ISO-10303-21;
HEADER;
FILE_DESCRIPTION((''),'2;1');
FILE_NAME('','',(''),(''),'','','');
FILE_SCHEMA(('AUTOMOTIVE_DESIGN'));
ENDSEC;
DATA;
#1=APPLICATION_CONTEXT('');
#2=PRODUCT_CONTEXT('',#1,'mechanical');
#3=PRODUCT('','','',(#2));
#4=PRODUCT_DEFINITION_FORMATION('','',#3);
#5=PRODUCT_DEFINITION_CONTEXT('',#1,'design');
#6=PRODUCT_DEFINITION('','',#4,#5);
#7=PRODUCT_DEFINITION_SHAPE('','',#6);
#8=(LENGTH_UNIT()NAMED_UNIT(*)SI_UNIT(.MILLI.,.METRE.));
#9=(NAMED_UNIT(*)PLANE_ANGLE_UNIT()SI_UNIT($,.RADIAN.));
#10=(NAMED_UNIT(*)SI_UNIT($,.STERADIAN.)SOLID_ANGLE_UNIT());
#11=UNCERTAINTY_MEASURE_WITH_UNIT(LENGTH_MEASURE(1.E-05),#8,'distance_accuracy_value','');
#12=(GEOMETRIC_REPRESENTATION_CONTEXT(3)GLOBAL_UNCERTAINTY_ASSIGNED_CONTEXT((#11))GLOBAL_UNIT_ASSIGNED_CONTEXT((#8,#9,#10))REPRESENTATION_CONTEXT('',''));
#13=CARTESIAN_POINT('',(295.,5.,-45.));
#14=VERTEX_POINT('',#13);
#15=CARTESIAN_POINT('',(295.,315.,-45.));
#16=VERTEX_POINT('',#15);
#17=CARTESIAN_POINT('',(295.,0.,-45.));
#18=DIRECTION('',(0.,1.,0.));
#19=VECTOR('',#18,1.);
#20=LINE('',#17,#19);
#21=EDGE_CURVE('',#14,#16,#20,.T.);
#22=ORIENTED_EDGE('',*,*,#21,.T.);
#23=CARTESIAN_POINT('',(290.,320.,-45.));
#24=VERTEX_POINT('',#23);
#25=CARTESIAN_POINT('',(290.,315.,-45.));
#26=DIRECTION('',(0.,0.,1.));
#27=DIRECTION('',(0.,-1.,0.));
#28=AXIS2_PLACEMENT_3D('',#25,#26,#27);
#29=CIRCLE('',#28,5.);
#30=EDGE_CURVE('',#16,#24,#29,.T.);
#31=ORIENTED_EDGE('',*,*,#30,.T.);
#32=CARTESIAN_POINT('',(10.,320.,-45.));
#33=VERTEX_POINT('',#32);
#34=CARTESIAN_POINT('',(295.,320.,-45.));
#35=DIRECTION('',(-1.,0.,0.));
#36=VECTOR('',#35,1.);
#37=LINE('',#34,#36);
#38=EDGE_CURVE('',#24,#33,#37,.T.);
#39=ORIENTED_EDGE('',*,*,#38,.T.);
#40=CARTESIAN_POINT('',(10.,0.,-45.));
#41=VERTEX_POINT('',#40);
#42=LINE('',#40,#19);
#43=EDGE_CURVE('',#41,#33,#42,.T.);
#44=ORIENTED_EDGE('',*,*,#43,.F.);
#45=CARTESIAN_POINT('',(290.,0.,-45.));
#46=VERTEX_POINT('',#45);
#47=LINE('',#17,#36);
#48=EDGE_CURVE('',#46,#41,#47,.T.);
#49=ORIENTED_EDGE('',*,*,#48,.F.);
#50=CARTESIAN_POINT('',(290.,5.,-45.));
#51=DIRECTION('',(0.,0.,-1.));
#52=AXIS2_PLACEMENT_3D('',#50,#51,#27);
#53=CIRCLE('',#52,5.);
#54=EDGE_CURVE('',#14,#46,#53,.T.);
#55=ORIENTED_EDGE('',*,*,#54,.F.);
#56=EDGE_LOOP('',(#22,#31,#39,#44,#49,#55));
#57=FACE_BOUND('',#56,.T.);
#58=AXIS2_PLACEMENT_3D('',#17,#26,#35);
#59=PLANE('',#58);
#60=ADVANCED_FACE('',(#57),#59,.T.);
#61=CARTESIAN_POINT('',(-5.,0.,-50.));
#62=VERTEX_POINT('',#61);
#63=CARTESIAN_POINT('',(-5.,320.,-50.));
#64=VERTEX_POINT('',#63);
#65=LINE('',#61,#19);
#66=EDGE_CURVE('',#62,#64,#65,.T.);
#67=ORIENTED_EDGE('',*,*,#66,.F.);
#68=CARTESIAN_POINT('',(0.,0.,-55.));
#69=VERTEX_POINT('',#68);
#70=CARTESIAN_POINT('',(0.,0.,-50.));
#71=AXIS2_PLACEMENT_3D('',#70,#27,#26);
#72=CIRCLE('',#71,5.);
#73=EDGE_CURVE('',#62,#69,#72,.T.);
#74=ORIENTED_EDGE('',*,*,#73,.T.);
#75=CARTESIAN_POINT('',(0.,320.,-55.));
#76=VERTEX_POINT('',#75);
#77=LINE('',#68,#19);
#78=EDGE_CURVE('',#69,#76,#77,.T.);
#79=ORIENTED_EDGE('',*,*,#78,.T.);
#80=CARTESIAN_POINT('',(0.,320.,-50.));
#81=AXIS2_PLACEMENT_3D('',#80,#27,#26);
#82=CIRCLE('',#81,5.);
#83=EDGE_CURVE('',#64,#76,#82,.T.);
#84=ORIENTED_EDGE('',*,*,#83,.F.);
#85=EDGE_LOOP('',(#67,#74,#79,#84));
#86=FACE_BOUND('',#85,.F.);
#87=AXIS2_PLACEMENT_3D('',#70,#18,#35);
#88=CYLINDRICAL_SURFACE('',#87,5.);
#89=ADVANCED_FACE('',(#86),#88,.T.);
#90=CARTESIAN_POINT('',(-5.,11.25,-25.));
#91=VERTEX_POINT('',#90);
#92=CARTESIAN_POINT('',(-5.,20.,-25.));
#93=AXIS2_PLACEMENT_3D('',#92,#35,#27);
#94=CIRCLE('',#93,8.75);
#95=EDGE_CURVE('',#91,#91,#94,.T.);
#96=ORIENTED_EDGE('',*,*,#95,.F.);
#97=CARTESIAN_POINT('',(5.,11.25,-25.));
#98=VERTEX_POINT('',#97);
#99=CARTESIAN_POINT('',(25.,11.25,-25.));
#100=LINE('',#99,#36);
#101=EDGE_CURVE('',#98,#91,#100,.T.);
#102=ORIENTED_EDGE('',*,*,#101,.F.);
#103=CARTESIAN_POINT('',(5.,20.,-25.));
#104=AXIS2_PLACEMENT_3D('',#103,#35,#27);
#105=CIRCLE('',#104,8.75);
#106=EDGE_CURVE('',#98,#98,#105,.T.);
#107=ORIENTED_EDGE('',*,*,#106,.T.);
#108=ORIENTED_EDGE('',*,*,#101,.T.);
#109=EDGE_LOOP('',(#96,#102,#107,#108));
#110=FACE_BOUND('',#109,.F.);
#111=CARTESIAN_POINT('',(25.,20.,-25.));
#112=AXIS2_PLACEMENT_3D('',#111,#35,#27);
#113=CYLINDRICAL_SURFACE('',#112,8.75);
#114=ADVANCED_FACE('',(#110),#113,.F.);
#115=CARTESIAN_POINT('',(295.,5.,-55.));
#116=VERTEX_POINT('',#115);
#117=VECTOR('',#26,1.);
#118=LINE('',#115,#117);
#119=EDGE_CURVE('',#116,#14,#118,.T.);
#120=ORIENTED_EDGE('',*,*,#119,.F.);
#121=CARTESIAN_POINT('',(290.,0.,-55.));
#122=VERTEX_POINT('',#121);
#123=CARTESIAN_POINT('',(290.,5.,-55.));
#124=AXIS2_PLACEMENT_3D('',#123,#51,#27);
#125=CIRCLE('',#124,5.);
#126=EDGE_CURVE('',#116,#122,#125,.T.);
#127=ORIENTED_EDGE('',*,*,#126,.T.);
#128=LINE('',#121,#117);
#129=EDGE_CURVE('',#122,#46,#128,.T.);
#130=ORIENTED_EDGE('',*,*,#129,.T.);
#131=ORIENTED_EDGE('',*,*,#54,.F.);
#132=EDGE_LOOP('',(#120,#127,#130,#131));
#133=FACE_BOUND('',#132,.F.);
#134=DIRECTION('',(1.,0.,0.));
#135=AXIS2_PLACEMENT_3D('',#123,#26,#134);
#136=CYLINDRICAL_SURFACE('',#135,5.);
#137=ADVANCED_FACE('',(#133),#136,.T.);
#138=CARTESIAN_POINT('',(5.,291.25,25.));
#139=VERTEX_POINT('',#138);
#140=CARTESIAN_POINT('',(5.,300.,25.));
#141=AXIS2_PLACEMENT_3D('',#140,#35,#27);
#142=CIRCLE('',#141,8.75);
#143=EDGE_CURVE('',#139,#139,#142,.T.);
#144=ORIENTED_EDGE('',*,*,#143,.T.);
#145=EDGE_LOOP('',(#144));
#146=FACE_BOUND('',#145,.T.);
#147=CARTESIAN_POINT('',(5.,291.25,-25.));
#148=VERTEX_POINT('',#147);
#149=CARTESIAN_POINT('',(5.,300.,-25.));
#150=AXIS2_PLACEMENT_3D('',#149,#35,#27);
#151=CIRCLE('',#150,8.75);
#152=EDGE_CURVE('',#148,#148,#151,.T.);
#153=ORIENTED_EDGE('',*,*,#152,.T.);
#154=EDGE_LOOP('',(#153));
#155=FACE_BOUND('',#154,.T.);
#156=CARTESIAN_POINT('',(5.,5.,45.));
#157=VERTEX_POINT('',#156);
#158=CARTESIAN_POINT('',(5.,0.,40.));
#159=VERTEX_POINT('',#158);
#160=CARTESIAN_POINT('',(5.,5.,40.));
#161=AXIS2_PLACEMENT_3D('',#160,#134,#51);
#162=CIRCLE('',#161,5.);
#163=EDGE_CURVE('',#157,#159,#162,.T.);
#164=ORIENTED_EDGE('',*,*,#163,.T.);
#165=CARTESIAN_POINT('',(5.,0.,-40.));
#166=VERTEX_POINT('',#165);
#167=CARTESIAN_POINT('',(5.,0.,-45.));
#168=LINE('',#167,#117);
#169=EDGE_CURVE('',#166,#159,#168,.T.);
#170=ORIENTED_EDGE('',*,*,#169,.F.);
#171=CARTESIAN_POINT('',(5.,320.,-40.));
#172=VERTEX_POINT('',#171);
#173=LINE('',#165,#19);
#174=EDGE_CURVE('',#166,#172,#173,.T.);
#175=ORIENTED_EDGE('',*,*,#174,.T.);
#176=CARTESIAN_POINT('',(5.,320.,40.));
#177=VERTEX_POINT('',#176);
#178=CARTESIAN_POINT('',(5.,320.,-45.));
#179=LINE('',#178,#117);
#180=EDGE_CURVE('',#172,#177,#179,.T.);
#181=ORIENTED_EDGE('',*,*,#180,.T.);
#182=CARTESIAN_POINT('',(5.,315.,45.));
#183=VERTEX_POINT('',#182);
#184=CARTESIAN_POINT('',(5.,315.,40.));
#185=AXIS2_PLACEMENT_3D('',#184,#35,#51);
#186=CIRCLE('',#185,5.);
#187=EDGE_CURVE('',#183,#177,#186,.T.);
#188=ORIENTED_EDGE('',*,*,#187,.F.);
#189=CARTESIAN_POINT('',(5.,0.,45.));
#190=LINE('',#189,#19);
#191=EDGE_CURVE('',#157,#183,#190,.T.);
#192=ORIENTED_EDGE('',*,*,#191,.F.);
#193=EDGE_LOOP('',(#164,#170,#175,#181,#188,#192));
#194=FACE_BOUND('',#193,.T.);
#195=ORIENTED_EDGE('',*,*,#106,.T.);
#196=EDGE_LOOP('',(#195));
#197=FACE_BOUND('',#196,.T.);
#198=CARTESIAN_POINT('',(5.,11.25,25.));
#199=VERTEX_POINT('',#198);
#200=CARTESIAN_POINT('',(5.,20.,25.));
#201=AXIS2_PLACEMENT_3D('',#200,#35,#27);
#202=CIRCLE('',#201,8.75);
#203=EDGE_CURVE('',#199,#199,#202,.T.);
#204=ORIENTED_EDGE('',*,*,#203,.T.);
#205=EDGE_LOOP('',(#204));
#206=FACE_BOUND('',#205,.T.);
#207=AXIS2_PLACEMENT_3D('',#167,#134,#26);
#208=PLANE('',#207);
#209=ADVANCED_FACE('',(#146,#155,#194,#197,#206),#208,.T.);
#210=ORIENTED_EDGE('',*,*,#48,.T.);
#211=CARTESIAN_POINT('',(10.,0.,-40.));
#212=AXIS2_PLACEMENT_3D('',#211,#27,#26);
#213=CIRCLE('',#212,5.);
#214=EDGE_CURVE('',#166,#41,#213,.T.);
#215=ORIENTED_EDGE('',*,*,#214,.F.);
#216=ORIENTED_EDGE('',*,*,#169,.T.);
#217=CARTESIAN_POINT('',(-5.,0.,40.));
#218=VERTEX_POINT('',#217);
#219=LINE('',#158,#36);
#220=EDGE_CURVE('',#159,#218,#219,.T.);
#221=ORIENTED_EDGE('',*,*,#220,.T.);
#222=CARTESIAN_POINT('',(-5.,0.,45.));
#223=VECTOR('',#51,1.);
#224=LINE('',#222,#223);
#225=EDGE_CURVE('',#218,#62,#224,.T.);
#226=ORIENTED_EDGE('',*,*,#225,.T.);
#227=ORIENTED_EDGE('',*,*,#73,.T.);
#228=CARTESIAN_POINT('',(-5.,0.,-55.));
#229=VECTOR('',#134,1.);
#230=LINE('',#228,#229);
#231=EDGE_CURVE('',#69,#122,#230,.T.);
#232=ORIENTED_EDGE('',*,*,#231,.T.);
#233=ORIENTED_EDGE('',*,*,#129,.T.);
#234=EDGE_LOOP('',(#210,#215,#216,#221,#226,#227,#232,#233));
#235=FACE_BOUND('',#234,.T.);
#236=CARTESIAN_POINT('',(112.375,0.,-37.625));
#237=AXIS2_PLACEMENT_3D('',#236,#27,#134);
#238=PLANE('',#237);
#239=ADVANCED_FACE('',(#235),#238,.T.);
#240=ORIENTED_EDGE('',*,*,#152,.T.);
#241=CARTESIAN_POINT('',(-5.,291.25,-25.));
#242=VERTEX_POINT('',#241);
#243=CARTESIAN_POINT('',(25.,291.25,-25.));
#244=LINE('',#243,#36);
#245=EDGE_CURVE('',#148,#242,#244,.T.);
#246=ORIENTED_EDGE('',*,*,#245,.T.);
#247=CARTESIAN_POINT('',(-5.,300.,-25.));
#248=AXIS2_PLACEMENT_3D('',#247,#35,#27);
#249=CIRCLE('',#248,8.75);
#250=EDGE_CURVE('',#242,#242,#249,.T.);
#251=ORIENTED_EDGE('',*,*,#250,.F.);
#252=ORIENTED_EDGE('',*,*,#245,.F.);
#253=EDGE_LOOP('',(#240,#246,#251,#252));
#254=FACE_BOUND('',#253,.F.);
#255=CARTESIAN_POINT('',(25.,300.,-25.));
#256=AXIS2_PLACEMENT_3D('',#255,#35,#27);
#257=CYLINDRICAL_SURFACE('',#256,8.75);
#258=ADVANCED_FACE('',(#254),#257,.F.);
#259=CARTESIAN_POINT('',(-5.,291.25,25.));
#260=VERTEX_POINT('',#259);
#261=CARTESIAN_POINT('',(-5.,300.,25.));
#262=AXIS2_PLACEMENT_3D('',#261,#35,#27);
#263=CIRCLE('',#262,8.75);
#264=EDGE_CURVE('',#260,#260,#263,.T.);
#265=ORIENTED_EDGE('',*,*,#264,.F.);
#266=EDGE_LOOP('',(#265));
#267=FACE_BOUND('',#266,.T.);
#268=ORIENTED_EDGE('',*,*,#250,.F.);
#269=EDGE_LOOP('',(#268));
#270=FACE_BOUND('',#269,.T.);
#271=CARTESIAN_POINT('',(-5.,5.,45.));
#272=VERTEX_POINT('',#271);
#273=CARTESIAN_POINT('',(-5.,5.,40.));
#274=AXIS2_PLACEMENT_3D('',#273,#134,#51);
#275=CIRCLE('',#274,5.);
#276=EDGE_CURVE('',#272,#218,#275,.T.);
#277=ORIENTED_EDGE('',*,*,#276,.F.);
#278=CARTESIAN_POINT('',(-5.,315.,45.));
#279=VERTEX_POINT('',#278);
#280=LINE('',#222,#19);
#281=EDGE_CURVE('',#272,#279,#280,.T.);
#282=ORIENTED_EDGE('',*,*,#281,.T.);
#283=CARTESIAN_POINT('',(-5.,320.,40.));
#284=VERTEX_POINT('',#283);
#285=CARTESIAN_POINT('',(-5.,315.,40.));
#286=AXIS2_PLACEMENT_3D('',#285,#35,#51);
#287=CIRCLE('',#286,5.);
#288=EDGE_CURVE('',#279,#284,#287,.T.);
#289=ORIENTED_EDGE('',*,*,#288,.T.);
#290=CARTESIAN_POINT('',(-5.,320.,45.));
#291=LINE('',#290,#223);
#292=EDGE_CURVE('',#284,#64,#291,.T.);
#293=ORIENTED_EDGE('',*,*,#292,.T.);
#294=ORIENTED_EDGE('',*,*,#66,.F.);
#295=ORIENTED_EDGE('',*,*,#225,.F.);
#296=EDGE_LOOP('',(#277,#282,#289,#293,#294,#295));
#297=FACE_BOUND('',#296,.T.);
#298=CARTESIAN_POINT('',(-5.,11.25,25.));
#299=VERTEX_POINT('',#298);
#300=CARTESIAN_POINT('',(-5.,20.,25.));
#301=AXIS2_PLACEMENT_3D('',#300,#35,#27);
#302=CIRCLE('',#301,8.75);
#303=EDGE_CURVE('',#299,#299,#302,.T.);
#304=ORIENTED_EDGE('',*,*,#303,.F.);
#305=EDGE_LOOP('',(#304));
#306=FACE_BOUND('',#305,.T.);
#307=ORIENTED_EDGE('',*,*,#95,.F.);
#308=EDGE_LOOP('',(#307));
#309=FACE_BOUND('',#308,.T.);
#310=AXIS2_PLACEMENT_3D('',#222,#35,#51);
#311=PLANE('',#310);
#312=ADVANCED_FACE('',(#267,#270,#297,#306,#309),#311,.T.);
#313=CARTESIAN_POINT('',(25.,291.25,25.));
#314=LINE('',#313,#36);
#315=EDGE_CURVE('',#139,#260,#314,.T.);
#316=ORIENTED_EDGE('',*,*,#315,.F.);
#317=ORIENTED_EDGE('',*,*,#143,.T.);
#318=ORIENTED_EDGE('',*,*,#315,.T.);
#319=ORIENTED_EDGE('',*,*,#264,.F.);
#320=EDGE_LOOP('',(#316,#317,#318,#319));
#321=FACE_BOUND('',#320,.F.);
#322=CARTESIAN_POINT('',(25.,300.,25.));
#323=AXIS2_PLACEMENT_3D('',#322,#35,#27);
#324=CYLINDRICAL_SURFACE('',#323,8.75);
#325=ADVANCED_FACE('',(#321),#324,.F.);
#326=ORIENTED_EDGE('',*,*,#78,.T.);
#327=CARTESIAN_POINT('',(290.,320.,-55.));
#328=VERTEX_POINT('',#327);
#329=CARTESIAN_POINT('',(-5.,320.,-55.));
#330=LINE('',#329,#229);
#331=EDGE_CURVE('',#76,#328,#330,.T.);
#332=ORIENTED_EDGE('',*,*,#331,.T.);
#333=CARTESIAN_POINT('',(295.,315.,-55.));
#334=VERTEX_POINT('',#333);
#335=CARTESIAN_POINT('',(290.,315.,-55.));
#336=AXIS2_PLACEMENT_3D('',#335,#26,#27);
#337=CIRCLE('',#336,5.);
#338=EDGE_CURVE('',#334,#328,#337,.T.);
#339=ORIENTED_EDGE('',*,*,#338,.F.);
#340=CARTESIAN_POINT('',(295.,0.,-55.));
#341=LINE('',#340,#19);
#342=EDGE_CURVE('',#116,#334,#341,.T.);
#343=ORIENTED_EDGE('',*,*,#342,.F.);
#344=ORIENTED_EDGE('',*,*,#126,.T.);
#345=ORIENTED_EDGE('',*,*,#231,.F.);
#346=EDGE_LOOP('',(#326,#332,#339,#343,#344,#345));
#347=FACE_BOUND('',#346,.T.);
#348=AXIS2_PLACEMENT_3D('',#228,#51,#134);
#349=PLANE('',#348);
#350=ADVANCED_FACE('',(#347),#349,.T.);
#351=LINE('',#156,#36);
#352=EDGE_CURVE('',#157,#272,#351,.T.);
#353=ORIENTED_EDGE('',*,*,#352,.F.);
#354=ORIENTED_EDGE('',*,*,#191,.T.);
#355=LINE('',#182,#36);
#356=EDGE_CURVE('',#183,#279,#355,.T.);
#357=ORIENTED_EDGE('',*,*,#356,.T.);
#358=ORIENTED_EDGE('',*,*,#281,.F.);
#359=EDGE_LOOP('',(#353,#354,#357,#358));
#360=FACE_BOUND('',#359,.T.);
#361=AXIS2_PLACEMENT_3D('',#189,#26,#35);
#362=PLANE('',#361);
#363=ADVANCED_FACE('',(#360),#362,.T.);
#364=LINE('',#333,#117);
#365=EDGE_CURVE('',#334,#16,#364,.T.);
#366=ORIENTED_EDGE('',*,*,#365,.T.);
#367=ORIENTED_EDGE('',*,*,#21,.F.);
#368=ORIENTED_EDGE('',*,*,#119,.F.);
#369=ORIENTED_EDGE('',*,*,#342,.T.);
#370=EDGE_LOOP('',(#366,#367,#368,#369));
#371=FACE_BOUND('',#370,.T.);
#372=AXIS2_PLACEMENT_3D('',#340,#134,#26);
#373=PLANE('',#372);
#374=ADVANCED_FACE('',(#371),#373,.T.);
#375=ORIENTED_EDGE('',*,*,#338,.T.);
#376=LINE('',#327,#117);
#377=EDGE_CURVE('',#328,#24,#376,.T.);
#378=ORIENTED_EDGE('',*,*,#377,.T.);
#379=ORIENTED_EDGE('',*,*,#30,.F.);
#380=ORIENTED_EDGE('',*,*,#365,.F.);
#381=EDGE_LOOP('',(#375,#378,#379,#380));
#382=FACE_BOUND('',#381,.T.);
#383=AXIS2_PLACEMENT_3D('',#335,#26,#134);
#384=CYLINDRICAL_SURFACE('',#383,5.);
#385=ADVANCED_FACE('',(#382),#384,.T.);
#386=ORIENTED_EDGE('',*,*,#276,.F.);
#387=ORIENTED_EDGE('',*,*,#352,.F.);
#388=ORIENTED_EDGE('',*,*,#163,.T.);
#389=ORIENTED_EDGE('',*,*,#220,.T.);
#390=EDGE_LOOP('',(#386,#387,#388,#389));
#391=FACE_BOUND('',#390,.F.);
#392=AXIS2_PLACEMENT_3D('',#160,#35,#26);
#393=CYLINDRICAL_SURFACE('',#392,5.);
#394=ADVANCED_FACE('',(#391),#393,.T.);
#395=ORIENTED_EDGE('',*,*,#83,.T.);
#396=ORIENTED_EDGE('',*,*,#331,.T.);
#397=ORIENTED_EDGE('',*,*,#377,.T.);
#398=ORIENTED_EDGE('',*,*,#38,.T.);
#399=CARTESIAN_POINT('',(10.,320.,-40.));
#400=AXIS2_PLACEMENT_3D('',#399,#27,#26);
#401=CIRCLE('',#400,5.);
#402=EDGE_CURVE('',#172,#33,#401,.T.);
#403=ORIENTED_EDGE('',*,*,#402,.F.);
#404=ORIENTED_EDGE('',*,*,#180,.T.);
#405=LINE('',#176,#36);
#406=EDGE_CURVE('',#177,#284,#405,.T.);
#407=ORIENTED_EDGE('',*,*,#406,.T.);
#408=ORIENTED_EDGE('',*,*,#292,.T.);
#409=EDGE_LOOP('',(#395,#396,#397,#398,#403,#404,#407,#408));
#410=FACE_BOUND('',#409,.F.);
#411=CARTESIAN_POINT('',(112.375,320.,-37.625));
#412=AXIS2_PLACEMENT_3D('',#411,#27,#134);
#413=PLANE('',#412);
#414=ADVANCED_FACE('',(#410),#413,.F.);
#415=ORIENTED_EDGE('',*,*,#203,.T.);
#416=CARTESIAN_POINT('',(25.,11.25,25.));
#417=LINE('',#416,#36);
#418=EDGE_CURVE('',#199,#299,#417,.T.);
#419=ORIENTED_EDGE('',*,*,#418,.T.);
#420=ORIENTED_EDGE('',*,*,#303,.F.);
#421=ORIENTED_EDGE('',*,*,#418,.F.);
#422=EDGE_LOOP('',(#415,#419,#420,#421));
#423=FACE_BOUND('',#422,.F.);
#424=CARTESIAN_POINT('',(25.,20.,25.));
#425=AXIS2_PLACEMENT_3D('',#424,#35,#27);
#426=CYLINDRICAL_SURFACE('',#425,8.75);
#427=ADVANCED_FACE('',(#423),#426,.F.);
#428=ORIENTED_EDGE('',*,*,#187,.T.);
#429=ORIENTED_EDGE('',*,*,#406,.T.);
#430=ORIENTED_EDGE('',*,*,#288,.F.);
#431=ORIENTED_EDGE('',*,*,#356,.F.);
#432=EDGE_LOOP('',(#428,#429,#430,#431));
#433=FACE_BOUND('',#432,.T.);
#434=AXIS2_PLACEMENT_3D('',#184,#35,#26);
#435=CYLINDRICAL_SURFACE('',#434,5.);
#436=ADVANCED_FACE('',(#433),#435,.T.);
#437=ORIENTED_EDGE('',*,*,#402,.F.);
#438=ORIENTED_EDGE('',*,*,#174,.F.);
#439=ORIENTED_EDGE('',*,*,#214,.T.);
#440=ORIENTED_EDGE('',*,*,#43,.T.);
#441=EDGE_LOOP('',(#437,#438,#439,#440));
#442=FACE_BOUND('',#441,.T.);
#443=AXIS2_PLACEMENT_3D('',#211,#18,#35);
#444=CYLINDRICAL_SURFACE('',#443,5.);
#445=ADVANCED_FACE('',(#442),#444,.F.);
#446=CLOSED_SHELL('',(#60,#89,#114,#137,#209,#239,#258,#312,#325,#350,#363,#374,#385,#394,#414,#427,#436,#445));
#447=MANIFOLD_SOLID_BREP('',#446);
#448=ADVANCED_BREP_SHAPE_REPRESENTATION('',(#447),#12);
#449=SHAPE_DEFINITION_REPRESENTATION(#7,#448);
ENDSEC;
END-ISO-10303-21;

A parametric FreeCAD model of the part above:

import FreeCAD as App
import Part
import Sketcher
Q = App.Units.Quantity


def edges_at(feature, points):
    """Names of the edges that pass closest to the given points."""
    edges = feature.Shape.Edges
    near = lambda p: min(range(len(edges)), key=lambda i: edges[i].distToShape(Part.Vertex(*p))[0])
    return sorted({f"Edge{near(p) + 1}" for p in points})

doc = App.newDocument("Part")
params = doc.addObject("Spreadsheet::Sheet", "Params")
for row, (alias, value) in enumerate([
    ("sketch1_width", "10 mm"),
    ("sketch1_width2", "300 mm"),
    ("sketch1_height", "90 mm"),
    ("pad1_length", "320 mm"),
    ("fillet_radius", "5 mm"),
    ("sketch2_diameter", "17.5 mm"),
    ("hole_diameter", "17.5 mm"),
    ("hole_depth", "20 mm"),
    ("fillet2_radius", "5 mm"),
    ("fillet3_radius", "5 mm"),
], start=1):
    params.set(f"A{row}", alias)
    params.set(f"B{row}", "=" + value)
    params.setAlias(f"B{row}", alias)

body = doc.addObject("PartDesign::Body", "Body")

# Sketch on XZ plane
sketch1 = body.newObject("Sketcher::SketchObject", "Sketch")
sketch1.AttachmentSupport = (doc.getObject("XZ_Plane"), [""])
sketch1.MapMode = "FlatFace"
sketch1.addGeometry([
    Part.LineSegment(App.Vector(5, -45, 0), App.Vector(5, 45, 0)),  # 0
    Part.LineSegment(App.Vector(5, 45, 0), App.Vector(-5, 45, 0)),  # 1
    Part.LineSegment(App.Vector(-5, 45, 0), App.Vector(-5, -55, 0)),  # 2
    Part.LineSegment(App.Vector(-5, -55, 0), App.Vector(295, -55, 0)),  # 3
    Part.LineSegment(App.Vector(295, -55, 0), App.Vector(295, -45, 0)),  # 4
    Part.LineSegment(App.Vector(295, -45, 0), App.Vector(5, -45, 0)),  # 5
], False)
sketch1.addConstraint([
    Sketcher.Constraint("Coincident", 0, 2, 1, 1),
    Sketcher.Constraint("Coincident", 1, 2, 2, 1),
    Sketcher.Constraint("Coincident", 2, 2, 3, 1),
    Sketcher.Constraint("Coincident", 3, 2, 4, 1),
    Sketcher.Constraint("Coincident", 4, 2, 5, 1),
    Sketcher.Constraint("Coincident", 5, 2, 0, 1),
    Sketcher.Constraint("Vertical", 0),
    Sketcher.Constraint("Horizontal", 1),
    Sketcher.Constraint("Vertical", 2),
    Sketcher.Constraint("Horizontal", 3),
    Sketcher.Constraint("Vertical", 4),
    Sketcher.Constraint("Horizontal", 5),
    Sketcher.Constraint("Symmetric", 1, 2, 5, 2, -1, 1),
    Sketcher.Constraint("Equal", 1, 4),
    Sketcher.Constraint("DistanceX", 1, 2, 1, 1, Q("10 mm")),
    Sketcher.Constraint("DistanceX", 3, 1, 3, 2, Q("300 mm")),
    Sketcher.Constraint("DistanceY", 0, 1, 0, 2, Q("90 mm")),
])
sketch1.setExpression("Constraints[14]", "Params.sketch1_width")
sketch1.setExpression("Constraints[15]", "Params.sketch1_width2")
sketch1.setExpression("Constraints[16]", "Params.sketch1_height")
pad1 = body.newObject("PartDesign::Pad", "Pad")
pad1.Profile = sketch1
pad1.setExpression("Length", "Params.pad1_length")
pad1.Reversed = True
doc.recompute()

fillet = body.newObject("PartDesign::Fillet", "Fillet")
fillet.Base = (pad1, edges_at(pad1, [
    (0, 0, 45),
    (0, 320, 45),
    (295, 320, -50),
    (295, 0, -50),
]))
fillet.setExpression("Radius", "Params.fillet_radius")

# Sketch on YZ plane
sketch2 = body.newObject("Sketcher::SketchObject", "Sketch001")
sketch2.AttachmentSupport = (doc.getObject("YZ_Plane"), [""])
sketch2.MapMode = "FlatFace"
sketch2.AttachmentOffset = App.Placement(App.Vector(0, 0, 5), App.Rotation())
sketch2.addGeometry([
    Part.Circle(App.Vector(20, -25, 0), App.Vector(0, 0, 1), 9),
    Part.Circle(App.Vector(20, 25, 0), App.Vector(0, 0, 1), 9),
    Part.Circle(App.Vector(300, 25, 0), App.Vector(0, 0, 1), 9),
    Part.Circle(App.Vector(300, -25, 0), App.Vector(0, 0, 1), 9),
], False)
sketch2.addConstraint([
    Sketcher.Constraint("Equal", 0, 1),
    Sketcher.Constraint("Equal", 1, 2),
    Sketcher.Constraint("Equal", 2, 3),
    Sketcher.Constraint("Symmetric", 0, 3, 1, 3, -1),
    Sketcher.Constraint("Symmetric", 2, 3, 3, 3, -1),
    Sketcher.Constraint("Horizontal", 1, 3, 2, 3),
    Sketcher.Constraint("Diameter", 0, Q("17.5 mm")),
    Sketcher.Constraint("DistanceX", -1, 1, 0, 3, Q("20 mm")),
    Sketcher.Constraint("DistanceY", 0, 3, -1, 1, Q("25 mm")),
    Sketcher.Constraint("DistanceX", -1, 1, 2, 3, Q("300 mm")),
])
sketch2.setExpression("Constraints[6]", "Params.sketch2_diameter")
doc.recompute()
hole = body.newObject("PartDesign::Hole", "Hole")
hole.Profile = sketch2
hole.ThreadType = "None"
hole.setExpression("Diameter", "Params.hole_diameter")
hole.DepthType = "Dimension"
hole.setExpression("Depth", "Params.hole_depth")
hole.DrillPoint = "Angled"
hole.DrillPointAngle = 118
doc.recompute()

fillet2 = body.newObject("PartDesign::Fillet", "Fillet001")
fillet2.Base = (hole, edges_at(hole, [(-5, 160, -55)]))
fillet2.setExpression("Radius", "Params.fillet2_radius")
doc.recompute()

fillet3 = body.newObject("PartDesign::Fillet", "Fillet002")
fillet3.Base = (fillet2, edges_at(fillet2, [(5, 160, -45)]))
fillet3.setExpression("Radius", "Params.fillet3_radius")

doc.recompute()
